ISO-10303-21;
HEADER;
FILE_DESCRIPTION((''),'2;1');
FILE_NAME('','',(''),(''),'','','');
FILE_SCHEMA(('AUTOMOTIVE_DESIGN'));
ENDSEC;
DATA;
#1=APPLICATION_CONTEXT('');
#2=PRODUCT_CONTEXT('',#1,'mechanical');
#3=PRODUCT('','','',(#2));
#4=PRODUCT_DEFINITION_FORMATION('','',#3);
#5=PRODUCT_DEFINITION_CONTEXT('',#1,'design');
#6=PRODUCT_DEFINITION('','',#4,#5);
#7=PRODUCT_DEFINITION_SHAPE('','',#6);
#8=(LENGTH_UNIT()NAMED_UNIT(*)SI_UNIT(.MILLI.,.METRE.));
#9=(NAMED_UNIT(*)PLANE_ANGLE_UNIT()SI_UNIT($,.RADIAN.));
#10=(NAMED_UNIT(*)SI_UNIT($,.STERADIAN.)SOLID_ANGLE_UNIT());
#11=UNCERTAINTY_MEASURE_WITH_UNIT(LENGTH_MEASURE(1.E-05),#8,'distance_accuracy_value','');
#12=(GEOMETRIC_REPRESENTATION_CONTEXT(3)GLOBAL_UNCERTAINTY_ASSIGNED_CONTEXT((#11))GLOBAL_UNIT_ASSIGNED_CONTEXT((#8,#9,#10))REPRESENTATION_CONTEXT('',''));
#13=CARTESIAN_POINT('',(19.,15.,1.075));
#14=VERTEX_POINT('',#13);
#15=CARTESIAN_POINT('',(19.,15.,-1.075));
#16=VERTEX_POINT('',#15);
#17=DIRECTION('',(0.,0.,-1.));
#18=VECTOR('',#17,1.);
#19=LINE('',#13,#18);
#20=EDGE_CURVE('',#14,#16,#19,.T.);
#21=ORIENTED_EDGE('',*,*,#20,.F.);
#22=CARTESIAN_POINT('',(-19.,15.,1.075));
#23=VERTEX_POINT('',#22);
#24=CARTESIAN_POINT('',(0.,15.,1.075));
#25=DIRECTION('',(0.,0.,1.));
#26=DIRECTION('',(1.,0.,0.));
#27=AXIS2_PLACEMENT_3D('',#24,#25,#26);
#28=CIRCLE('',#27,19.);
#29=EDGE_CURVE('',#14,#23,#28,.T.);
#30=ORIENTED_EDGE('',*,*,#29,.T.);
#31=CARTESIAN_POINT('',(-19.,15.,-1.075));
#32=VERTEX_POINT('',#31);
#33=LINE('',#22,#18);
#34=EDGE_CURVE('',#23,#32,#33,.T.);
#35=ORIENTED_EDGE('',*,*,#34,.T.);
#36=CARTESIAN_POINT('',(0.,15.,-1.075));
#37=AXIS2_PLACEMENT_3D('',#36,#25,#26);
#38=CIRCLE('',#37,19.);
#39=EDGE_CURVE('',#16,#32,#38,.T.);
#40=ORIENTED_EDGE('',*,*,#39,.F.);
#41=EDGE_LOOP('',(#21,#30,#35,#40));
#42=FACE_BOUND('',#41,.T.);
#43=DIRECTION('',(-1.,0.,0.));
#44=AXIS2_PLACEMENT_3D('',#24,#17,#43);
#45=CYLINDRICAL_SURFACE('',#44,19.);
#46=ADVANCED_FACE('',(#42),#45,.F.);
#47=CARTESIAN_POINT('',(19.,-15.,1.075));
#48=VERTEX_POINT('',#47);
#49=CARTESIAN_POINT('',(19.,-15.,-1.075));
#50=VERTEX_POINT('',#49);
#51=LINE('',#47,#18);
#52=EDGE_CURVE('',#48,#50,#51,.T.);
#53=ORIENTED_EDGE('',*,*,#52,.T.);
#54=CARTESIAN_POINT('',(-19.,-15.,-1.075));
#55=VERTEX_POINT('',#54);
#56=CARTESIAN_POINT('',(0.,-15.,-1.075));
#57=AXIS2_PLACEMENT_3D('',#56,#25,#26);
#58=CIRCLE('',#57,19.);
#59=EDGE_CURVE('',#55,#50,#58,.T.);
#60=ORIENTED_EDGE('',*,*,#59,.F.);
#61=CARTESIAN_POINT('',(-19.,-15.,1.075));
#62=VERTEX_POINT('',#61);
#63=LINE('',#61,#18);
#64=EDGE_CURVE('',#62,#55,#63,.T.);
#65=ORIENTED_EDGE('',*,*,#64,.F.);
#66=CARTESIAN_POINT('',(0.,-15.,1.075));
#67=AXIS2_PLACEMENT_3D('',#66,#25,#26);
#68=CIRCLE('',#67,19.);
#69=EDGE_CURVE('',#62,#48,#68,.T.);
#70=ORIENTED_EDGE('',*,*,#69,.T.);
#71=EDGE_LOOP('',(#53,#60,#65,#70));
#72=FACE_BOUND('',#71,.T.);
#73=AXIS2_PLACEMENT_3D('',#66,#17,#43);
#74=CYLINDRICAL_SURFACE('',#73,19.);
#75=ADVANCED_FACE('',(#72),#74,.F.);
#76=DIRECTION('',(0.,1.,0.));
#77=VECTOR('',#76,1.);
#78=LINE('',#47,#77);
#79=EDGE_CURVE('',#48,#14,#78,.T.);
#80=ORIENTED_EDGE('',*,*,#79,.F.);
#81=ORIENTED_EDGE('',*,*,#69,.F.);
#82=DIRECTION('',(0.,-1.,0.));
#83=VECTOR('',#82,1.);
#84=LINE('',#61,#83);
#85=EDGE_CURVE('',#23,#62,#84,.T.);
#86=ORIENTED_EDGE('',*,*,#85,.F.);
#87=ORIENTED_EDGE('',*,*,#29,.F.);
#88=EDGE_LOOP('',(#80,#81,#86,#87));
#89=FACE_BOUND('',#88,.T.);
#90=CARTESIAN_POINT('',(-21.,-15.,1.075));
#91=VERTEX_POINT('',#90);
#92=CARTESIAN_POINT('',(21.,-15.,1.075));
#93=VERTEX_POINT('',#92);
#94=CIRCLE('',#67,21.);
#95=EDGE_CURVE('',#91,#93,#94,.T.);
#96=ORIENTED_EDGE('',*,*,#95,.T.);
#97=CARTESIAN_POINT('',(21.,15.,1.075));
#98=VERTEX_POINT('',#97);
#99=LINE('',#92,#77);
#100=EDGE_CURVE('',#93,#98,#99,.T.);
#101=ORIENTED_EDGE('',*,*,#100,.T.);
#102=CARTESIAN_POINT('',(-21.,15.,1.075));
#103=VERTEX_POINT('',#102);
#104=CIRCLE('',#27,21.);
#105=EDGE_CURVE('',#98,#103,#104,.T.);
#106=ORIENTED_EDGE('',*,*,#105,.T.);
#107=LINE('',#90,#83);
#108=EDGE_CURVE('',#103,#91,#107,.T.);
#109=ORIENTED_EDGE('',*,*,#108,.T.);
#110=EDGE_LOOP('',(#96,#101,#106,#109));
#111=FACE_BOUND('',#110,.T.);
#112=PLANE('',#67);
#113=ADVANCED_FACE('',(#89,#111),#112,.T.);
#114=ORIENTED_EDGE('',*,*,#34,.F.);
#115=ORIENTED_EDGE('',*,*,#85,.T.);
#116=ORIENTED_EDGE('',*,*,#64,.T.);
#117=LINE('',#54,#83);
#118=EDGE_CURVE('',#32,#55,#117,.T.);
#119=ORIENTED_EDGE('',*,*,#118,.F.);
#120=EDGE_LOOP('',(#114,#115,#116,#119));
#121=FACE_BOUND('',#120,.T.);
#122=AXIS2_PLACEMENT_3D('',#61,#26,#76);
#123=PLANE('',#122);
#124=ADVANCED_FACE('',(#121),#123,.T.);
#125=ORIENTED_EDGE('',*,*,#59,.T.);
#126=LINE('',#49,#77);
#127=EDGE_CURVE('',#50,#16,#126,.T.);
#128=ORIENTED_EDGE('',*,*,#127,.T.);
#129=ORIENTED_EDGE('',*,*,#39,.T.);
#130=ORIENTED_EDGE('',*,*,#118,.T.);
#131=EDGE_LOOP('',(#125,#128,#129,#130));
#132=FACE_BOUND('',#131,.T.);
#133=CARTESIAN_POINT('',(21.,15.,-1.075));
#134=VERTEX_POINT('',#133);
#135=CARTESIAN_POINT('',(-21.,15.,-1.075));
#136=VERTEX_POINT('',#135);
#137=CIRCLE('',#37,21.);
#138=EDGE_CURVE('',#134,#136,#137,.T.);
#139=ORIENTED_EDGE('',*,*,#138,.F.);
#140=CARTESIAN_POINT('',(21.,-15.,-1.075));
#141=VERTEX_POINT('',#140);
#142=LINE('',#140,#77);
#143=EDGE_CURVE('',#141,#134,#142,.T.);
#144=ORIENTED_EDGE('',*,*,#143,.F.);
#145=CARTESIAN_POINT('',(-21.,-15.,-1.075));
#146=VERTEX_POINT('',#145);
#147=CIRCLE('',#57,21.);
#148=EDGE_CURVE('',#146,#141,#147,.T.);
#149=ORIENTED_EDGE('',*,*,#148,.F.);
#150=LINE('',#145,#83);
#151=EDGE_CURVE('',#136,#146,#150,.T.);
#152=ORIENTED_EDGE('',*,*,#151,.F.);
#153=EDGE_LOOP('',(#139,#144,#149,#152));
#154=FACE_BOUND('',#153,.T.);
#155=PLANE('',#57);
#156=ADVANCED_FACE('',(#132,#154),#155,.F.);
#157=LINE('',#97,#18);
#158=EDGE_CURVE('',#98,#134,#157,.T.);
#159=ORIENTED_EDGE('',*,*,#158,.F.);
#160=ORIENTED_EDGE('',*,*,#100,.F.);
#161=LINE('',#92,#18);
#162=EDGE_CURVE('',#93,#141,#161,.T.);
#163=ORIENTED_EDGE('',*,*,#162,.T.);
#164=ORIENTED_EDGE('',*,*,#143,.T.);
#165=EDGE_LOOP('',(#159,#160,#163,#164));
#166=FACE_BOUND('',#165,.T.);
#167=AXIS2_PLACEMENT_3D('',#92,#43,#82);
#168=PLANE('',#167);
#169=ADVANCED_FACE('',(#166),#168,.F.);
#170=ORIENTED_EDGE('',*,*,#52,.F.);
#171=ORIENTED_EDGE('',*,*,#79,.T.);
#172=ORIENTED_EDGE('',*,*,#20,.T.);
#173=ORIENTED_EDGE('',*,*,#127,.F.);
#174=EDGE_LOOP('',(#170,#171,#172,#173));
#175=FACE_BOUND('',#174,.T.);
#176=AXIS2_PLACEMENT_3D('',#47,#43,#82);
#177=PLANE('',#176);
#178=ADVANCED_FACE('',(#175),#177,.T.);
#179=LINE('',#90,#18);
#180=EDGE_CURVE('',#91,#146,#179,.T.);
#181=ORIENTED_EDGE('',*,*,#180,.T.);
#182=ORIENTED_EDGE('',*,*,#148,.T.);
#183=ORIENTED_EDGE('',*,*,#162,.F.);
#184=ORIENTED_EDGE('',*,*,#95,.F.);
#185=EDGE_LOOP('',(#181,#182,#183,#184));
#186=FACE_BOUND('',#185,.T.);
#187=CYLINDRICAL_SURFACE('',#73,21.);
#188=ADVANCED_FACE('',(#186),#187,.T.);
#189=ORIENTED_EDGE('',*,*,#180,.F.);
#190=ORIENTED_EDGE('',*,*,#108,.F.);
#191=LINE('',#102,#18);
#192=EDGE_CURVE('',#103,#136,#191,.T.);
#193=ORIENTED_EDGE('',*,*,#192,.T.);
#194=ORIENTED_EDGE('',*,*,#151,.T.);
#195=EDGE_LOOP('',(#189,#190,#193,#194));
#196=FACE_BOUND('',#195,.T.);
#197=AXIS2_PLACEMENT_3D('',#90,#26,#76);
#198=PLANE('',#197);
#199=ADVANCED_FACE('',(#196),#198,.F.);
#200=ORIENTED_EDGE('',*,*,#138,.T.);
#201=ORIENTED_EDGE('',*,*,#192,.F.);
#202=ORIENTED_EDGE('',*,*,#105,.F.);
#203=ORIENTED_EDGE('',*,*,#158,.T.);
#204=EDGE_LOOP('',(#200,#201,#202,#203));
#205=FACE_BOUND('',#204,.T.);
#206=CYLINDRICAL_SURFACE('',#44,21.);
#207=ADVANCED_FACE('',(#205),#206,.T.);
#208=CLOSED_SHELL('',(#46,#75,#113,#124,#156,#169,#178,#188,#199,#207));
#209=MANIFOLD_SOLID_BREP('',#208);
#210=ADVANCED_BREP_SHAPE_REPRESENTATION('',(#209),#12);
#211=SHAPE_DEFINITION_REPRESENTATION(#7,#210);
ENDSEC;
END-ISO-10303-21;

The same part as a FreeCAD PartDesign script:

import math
import FreeCAD as App
import Part
import Sketcher

V = App.Vector

doc = App.newDocument("Part")
body = doc.addObject("PartDesign::Body", "Body")

# Sketch on XY plane
sketch1 = body.newObject("Sketcher::SketchObject", "Sketch")
sketch1.AttachmentSupport = (doc.getObject("XY_Plane"), [""])
sketch1.MapMode = "FlatFace"
sketch1.addGeometry([
    Part.LineSegment(V(21, -15, 0), V(21, 15, 0)),  # 0
    Part.ArcOfCircle(Part.Circle(V(0, 15, 0), V(0, 0, 1), 21), math.radians(0), math.radians(180)),  # 1
    Part.LineSegment(V(-21, 15, 0), V(-21, -15, 0)),  # 2
    Part.ArcOfCircle(Part.Circle(V(0, -15, 0), V(0, 0, 1), 21), math.radians(180), math.radians(360)),  # 3
    Part.LineSegment(V(19, 15, 0), V(19, -15, 0)),  # 4
    Part.ArcOfCircle(Part.Circle(V(0, -15, 0), V(0, 0, 1), 19), math.radians(180), math.radians(360)),  # 5
    Part.LineSegment(V(-19, -15, 0), V(-19, 15, 0)),  # 6
    Part.ArcOfCircle(Part.Circle(V(0, 15, 0), V(0, 0, 1), 19), math.radians(0), math.radians(180)),  # 7
], False)
sketch1.addConstraint([
    Sketcher.Constraint("Tangent", 0, 2, 1, 1),
    Sketcher.Constraint("Tangent", 1, 2, 2, 1),
    Sketcher.Constraint("Tangent", 2, 2, 3, 1),
    Sketcher.Constraint("Tangent", 3, 2, 0, 1),
    Sketcher.Constraint("Tangent", 4, 2, 5, 2),
    Sketcher.Constraint("Tangent", 5, 1, 6, 1),
    Sketcher.Constraint("Tangent", 6, 2, 7, 2),
    Sketcher.Constraint("Tangent", 7, 1, 4, 1),
    Sketcher.Constraint("Vertical", 0),
    Sketcher.Constraint("Vertical", 2),
    Sketcher.Constraint("Vertical", 4),
    Sketcher.Constraint("Vertical", 6),
    Sketcher.Constraint("Coincident", 5, 3, 3, 3),
    Sketcher.Constraint("Symmetric", 1, 3, 3, 3, -1, 1),
    Sketcher.Constraint("Horizontal", 7, 3, 0, 2),
    Sketcher.Constraint("Radius", 1, 21.0),
    Sketcher.Constraint("Radius", 5, 19.0),
    Sketcher.Constraint("DistanceY", 0, 1, 0, 2, 30.0),
])
pad1 = body.newObject("PartDesign::Pad", "Pad")
pad1.Profile = sketch1
pad1.Length = 2.15
pad1.Midplane = True

doc.recompute()
